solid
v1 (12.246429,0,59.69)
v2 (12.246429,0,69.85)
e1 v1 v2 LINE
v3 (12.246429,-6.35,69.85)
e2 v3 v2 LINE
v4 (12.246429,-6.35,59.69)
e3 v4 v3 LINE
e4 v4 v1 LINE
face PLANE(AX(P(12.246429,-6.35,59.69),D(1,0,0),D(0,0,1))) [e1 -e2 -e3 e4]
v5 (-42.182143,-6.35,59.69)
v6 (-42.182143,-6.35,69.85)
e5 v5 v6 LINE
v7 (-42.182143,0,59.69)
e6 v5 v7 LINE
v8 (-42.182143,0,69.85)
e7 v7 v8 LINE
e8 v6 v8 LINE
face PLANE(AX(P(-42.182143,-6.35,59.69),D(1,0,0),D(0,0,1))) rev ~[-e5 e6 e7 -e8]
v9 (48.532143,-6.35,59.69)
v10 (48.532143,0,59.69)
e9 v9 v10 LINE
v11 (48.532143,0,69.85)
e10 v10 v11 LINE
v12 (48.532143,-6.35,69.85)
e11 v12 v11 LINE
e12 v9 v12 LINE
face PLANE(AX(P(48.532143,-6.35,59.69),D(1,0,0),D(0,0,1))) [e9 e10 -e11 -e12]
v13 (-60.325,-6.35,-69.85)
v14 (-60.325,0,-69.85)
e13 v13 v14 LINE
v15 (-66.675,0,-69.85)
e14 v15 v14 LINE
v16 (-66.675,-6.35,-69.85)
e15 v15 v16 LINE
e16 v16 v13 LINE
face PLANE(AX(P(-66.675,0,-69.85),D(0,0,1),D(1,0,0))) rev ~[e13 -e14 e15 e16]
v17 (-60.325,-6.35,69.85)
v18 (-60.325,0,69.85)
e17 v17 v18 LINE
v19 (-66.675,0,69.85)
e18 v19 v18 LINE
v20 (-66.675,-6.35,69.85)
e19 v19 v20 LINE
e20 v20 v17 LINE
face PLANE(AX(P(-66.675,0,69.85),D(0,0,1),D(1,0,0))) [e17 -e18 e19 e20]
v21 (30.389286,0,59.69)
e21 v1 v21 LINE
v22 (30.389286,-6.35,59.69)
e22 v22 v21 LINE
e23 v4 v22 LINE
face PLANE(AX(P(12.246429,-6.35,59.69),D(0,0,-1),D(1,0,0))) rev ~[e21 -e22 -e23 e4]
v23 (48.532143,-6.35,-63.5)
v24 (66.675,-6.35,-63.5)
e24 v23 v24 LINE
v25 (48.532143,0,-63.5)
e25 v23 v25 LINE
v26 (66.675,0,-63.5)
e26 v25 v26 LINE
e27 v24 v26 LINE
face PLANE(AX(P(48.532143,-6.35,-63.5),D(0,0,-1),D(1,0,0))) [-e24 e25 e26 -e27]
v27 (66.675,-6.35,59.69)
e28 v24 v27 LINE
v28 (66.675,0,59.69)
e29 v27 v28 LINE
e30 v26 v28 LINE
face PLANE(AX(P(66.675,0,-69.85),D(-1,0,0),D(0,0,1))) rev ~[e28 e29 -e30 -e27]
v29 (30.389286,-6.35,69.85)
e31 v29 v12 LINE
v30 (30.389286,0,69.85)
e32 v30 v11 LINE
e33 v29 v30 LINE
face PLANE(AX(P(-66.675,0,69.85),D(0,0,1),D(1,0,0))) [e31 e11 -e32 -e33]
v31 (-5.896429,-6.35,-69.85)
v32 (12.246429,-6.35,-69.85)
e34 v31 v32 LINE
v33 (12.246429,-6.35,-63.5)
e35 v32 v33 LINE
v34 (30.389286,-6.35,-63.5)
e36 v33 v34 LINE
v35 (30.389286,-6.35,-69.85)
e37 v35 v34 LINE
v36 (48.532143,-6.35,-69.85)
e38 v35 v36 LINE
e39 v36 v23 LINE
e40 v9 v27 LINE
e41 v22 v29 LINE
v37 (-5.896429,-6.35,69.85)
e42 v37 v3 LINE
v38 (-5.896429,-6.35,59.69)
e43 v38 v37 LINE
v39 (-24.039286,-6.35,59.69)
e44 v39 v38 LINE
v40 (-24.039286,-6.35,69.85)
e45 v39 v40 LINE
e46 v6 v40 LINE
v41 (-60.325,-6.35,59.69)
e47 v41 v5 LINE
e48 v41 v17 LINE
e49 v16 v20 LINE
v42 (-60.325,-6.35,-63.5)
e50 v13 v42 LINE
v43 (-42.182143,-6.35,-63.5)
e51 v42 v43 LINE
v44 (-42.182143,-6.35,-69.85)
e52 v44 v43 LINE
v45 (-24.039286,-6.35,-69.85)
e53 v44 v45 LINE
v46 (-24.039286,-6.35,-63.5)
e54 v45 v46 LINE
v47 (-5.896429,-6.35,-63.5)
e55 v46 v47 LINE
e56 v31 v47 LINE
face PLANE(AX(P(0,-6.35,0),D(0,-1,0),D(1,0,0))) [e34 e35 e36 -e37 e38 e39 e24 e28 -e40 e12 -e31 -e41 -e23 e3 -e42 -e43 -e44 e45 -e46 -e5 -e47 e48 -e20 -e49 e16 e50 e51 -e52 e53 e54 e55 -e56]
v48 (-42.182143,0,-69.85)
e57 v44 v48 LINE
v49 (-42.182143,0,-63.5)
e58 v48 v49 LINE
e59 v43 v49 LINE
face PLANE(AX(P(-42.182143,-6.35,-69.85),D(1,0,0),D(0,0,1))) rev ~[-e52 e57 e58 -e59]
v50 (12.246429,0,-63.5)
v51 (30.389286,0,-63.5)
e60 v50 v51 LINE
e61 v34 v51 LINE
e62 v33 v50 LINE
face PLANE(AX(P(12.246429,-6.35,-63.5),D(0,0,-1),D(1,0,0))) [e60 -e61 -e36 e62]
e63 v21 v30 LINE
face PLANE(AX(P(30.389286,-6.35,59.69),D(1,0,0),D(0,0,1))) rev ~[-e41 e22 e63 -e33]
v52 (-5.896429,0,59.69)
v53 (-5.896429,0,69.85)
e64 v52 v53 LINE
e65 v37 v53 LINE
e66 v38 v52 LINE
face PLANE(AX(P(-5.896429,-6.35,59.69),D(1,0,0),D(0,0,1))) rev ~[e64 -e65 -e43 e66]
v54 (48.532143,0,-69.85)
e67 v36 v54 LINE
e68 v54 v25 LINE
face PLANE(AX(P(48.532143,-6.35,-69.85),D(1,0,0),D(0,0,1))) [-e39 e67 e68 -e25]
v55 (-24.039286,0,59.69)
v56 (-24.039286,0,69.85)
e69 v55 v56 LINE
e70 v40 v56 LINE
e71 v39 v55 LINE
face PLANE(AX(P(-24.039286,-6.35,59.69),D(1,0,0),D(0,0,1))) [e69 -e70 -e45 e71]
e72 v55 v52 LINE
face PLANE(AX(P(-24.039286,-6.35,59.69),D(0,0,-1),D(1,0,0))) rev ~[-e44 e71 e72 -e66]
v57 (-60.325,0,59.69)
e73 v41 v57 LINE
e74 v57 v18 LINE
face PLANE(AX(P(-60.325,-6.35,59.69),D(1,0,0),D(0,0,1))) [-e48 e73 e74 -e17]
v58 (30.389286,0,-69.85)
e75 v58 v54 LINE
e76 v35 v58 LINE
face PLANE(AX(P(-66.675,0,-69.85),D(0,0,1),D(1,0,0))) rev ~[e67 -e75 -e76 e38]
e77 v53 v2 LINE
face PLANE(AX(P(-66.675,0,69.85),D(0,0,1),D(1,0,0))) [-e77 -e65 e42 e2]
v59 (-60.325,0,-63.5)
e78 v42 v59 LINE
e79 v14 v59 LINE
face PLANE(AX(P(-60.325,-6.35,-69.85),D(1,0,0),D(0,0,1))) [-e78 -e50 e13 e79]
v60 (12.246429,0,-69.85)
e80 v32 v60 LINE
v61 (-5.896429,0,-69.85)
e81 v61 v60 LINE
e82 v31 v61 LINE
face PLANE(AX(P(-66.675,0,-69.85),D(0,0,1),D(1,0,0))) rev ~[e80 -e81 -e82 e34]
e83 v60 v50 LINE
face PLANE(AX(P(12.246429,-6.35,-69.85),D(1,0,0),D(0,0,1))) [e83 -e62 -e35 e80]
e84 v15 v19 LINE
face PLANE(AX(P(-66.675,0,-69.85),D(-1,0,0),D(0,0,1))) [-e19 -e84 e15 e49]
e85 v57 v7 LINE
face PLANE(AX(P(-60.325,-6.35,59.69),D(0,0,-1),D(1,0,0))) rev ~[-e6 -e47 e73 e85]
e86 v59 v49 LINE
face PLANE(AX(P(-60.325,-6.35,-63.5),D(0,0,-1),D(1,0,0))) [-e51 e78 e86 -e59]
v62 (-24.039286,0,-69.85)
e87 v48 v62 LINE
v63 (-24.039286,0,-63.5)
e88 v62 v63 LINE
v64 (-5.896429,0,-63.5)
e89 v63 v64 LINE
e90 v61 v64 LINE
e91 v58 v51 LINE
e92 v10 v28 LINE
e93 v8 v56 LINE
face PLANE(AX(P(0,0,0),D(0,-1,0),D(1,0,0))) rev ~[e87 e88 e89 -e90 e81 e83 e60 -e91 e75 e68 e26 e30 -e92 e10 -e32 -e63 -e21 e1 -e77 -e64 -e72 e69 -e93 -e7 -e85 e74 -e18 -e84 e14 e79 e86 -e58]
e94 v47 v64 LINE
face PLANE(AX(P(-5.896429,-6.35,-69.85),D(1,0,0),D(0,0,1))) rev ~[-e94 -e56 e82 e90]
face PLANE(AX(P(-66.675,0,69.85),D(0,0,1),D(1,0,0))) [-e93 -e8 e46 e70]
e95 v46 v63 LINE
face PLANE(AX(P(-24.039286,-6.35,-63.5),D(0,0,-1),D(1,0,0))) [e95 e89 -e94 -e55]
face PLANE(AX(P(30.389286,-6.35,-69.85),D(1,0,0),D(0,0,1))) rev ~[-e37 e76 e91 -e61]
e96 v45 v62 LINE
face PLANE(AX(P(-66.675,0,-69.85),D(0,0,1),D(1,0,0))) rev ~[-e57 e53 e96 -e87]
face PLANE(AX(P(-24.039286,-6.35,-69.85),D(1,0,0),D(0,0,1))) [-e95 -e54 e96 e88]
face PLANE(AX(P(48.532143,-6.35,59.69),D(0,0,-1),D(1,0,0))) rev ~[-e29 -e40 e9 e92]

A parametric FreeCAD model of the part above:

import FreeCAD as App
import Part
import Sketcher
Q = App.Units.Quantity


def add_polygon(sketch, points):
    """Adds a closed chain of lines whose ends are joined by coincident constraints."""
    first, n = sketch.GeometryCount, len(points)
    for a, b in zip(points, points[1:] + points[:1]):
        sketch.addGeometry(Part.LineSegment(App.Vector(*a, 0), App.Vector(*b, 0)), False)
    for i in range(n):
        sketch.addConstraint(Sketcher.Constraint("Coincident", first + i, 2, first + (i + 1) % n, 1))

doc = App.newDocument("Part")
body = doc.addObject("PartDesign::Body", "Body")

sketch1 = body.newObject("Sketcher::SketchObject", "Sketch")
sketch1.AttachmentSupport = (doc.getObject("XZ_Plane"), [""])
sketch1.MapMode = "FlatFace"
add_polygon(sketch1, [(-67, 70), (-67, -70), (67, -70), (67, 70)])
sketch1.addConstraint([
    Sketcher.Constraint("Vertical", 0),
    Sketcher.Constraint("Horizontal", 1),
    Sketcher.Constraint("Vertical", 2),
    Sketcher.Constraint("Horizontal", 3),
    Sketcher.Constraint("Symmetric", 0, 2, 2, 2, -1, 1),
    Sketcher.Constraint("DistanceY", 0, 2, 0, 1, Q("5.5 in")),
    Sketcher.Constraint("DistanceX", 1, 1, 1, 2, Q("5.25 in")),
])
pad1 = body.newObject("PartDesign::Pad", "Pad")
pad1.Profile = sketch1
pad1.Length = Q("0.25 in")

sketch2 = body.newObject("Sketcher::SketchObject", "Sketch001")
sketch2.AttachmentSupport = (doc.getObject("XZ_Plane"), [""])
sketch2.MapMode = "FlatFace"
sketch2.AttachmentOffset = App.Placement(App.Vector(0, 0, 0.25 * 25.4), App.Rotation())
add_polygon(sketch2, [(49, 70), (49, 60), (67, 60), (67, 70)])
add_polygon(sketch2, [(-60, 70), (-60, 60), (-42, 60), (-42, 70)])
add_polygon(sketch2, [(-24, 70), (-24, 60), (-6, 60), (-6, 70)])
add_polygon(sketch2, [(12, 70), (12, 60), (30, 60), (30, 70)])
add_polygon(sketch2, [(-60, -64), (-60, -70), (-42, -70), (-42, -64)])
add_polygon(sketch2, [(-24, -64), (-24, -70), (-6, -70), (-6, -64)])
add_polygon(sketch2, [(12, -64), (12, -70), (30, -70), (30, -64)])
add_polygon(sketch2, [(49, -64), (49, -70), (67, -70), (67, -64)])
sketch2.addConstraint([
    Sketcher.Constraint("Vertical", 0),
    Sketcher.Constraint("Horizontal", 1),
    Sketcher.Constraint("Vertical", 2),
    Sketcher.Constraint("Horizontal", 3),
    Sketcher.Constraint("Vertical", 4),
    Sketcher.Constraint("Horizontal", 5),
    Sketcher.Constraint("Vertical", 6),
    Sketcher.Constraint("Horizontal", 7),
    Sketcher.Constraint("Vertical", 8),
    Sketcher.Constraint("Horizontal", 9),
    Sketcher.Constraint("Vertical", 10),
    Sketcher.Constraint("Horizontal", 11),
    Sketcher.Constraint("Vertical", 12),
    Sketcher.Constraint("Horizontal", 13),
    Sketcher.Constraint("Vertical", 14),
    Sketcher.Constraint("Horizontal", 15),
    Sketcher.Constraint("Vertical", 16),
    Sketcher.Constraint("Horizontal", 17),
    Sketcher.Constraint("Vertical", 18),
    Sketcher.Constraint("Horizontal", 19),
    Sketcher.Constraint("Vertical", 20),
    Sketcher.Constraint("Horizontal", 21),
    Sketcher.Constraint("Vertical", 22),
    Sketcher.Constraint("Horizontal", 23),
    Sketcher.Constraint("Vertical", 24),
    Sketcher.Constraint("Horizontal", 25),
    Sketcher.Constraint("Vertical", 26),
    Sketcher.Constraint("Horizontal", 27),
    Sketcher.Constraint("Vertical", 28),
    Sketcher.Constraint("Horizontal", 29),
    Sketcher.Constraint("Vertical", 30),
    Sketcher.Constraint("Horizontal", 31),
    Sketcher.Constraint("Symmetric", 7, 2, 16, 2, -1),
    Sketcher.Constraint("Symmetric", 11, 2, 20, 2, -1),
    Sketcher.Constraint("Symmetric", 15, 2, 24, 2, -1),
    Sketcher.Constraint("Symmetric", 3, 2, 28, 2, -1),
    Sketcher.Constraint("Horizontal", 1, 2, 4, 2),
    Sketcher.Constraint("Horizontal", 3, 2, 6, 2),
    Sketcher.Constraint("Horizontal", 5, 2, 8, 2),
    Sketcher.Constraint("Horizontal", 7, 2, 10, 2),
    Sketcher.Constraint("Horizontal", 9, 2, 12, 2),
    Sketcher.Constraint("Horizontal", 11, 2, 14, 2),
    Sketcher.Constraint("Horizontal", 19, 2, 22, 2),
    Sketcher.Constraint("Horizontal", 23, 2, 26, 2),
    Sketcher.Constraint("Horizontal", 27, 2, 30, 2),
    Sketcher.Constraint("Vertical", 6, 2, 17, 2),
    Sketcher.Constraint("Vertical", 10, 2, 21, 2),
    Sketcher.Constraint("Vertical", 14, 2, 25, 2),
    Sketcher.Constraint("Vertical", 2, 2, 29, 2),
    Sketcher.Constraint("Equal", 3, 5),
    Sketcher.Constraint("Equal", 7, 9),
    Sketcher.Constraint("Equal", 11, 13),
    Sketcher.Constraint("DistanceY", 0, 2, 0, 1, Q("0.4 in")),
    Sketcher.Constraint("DistanceX", 4, 2, 1, 2, Q("5 in")),
    Sketcher.Constraint("DistanceY", 16, 2, 16, 1, Q("0.25 in")),
    Sketcher.Constraint("DistanceY", 18, 2, -1, 1, Q("2.5 in")),
    Sketcher.Constraint("DistanceX", -1, 1, 1, 2, Q("2.625 in")),
    Sketcher.Constraint("DistanceX", 1, 1, 1, 2, Q("18.142857 mm")),
    Sketcher.Constraint("DistanceX", 9, 2, -1, 1, Q("5.896429 mm")),
    Sketcher.Constraint("DistanceX", -1, 1, 12, 2, Q("12.246429 mm")),
])
pocket1 = body.newObject("PartDesign::Pocket", "Pocket")
pocket1.Profile = sketch2
pocket1.Length = Q("1 in")

doc.recompute()
